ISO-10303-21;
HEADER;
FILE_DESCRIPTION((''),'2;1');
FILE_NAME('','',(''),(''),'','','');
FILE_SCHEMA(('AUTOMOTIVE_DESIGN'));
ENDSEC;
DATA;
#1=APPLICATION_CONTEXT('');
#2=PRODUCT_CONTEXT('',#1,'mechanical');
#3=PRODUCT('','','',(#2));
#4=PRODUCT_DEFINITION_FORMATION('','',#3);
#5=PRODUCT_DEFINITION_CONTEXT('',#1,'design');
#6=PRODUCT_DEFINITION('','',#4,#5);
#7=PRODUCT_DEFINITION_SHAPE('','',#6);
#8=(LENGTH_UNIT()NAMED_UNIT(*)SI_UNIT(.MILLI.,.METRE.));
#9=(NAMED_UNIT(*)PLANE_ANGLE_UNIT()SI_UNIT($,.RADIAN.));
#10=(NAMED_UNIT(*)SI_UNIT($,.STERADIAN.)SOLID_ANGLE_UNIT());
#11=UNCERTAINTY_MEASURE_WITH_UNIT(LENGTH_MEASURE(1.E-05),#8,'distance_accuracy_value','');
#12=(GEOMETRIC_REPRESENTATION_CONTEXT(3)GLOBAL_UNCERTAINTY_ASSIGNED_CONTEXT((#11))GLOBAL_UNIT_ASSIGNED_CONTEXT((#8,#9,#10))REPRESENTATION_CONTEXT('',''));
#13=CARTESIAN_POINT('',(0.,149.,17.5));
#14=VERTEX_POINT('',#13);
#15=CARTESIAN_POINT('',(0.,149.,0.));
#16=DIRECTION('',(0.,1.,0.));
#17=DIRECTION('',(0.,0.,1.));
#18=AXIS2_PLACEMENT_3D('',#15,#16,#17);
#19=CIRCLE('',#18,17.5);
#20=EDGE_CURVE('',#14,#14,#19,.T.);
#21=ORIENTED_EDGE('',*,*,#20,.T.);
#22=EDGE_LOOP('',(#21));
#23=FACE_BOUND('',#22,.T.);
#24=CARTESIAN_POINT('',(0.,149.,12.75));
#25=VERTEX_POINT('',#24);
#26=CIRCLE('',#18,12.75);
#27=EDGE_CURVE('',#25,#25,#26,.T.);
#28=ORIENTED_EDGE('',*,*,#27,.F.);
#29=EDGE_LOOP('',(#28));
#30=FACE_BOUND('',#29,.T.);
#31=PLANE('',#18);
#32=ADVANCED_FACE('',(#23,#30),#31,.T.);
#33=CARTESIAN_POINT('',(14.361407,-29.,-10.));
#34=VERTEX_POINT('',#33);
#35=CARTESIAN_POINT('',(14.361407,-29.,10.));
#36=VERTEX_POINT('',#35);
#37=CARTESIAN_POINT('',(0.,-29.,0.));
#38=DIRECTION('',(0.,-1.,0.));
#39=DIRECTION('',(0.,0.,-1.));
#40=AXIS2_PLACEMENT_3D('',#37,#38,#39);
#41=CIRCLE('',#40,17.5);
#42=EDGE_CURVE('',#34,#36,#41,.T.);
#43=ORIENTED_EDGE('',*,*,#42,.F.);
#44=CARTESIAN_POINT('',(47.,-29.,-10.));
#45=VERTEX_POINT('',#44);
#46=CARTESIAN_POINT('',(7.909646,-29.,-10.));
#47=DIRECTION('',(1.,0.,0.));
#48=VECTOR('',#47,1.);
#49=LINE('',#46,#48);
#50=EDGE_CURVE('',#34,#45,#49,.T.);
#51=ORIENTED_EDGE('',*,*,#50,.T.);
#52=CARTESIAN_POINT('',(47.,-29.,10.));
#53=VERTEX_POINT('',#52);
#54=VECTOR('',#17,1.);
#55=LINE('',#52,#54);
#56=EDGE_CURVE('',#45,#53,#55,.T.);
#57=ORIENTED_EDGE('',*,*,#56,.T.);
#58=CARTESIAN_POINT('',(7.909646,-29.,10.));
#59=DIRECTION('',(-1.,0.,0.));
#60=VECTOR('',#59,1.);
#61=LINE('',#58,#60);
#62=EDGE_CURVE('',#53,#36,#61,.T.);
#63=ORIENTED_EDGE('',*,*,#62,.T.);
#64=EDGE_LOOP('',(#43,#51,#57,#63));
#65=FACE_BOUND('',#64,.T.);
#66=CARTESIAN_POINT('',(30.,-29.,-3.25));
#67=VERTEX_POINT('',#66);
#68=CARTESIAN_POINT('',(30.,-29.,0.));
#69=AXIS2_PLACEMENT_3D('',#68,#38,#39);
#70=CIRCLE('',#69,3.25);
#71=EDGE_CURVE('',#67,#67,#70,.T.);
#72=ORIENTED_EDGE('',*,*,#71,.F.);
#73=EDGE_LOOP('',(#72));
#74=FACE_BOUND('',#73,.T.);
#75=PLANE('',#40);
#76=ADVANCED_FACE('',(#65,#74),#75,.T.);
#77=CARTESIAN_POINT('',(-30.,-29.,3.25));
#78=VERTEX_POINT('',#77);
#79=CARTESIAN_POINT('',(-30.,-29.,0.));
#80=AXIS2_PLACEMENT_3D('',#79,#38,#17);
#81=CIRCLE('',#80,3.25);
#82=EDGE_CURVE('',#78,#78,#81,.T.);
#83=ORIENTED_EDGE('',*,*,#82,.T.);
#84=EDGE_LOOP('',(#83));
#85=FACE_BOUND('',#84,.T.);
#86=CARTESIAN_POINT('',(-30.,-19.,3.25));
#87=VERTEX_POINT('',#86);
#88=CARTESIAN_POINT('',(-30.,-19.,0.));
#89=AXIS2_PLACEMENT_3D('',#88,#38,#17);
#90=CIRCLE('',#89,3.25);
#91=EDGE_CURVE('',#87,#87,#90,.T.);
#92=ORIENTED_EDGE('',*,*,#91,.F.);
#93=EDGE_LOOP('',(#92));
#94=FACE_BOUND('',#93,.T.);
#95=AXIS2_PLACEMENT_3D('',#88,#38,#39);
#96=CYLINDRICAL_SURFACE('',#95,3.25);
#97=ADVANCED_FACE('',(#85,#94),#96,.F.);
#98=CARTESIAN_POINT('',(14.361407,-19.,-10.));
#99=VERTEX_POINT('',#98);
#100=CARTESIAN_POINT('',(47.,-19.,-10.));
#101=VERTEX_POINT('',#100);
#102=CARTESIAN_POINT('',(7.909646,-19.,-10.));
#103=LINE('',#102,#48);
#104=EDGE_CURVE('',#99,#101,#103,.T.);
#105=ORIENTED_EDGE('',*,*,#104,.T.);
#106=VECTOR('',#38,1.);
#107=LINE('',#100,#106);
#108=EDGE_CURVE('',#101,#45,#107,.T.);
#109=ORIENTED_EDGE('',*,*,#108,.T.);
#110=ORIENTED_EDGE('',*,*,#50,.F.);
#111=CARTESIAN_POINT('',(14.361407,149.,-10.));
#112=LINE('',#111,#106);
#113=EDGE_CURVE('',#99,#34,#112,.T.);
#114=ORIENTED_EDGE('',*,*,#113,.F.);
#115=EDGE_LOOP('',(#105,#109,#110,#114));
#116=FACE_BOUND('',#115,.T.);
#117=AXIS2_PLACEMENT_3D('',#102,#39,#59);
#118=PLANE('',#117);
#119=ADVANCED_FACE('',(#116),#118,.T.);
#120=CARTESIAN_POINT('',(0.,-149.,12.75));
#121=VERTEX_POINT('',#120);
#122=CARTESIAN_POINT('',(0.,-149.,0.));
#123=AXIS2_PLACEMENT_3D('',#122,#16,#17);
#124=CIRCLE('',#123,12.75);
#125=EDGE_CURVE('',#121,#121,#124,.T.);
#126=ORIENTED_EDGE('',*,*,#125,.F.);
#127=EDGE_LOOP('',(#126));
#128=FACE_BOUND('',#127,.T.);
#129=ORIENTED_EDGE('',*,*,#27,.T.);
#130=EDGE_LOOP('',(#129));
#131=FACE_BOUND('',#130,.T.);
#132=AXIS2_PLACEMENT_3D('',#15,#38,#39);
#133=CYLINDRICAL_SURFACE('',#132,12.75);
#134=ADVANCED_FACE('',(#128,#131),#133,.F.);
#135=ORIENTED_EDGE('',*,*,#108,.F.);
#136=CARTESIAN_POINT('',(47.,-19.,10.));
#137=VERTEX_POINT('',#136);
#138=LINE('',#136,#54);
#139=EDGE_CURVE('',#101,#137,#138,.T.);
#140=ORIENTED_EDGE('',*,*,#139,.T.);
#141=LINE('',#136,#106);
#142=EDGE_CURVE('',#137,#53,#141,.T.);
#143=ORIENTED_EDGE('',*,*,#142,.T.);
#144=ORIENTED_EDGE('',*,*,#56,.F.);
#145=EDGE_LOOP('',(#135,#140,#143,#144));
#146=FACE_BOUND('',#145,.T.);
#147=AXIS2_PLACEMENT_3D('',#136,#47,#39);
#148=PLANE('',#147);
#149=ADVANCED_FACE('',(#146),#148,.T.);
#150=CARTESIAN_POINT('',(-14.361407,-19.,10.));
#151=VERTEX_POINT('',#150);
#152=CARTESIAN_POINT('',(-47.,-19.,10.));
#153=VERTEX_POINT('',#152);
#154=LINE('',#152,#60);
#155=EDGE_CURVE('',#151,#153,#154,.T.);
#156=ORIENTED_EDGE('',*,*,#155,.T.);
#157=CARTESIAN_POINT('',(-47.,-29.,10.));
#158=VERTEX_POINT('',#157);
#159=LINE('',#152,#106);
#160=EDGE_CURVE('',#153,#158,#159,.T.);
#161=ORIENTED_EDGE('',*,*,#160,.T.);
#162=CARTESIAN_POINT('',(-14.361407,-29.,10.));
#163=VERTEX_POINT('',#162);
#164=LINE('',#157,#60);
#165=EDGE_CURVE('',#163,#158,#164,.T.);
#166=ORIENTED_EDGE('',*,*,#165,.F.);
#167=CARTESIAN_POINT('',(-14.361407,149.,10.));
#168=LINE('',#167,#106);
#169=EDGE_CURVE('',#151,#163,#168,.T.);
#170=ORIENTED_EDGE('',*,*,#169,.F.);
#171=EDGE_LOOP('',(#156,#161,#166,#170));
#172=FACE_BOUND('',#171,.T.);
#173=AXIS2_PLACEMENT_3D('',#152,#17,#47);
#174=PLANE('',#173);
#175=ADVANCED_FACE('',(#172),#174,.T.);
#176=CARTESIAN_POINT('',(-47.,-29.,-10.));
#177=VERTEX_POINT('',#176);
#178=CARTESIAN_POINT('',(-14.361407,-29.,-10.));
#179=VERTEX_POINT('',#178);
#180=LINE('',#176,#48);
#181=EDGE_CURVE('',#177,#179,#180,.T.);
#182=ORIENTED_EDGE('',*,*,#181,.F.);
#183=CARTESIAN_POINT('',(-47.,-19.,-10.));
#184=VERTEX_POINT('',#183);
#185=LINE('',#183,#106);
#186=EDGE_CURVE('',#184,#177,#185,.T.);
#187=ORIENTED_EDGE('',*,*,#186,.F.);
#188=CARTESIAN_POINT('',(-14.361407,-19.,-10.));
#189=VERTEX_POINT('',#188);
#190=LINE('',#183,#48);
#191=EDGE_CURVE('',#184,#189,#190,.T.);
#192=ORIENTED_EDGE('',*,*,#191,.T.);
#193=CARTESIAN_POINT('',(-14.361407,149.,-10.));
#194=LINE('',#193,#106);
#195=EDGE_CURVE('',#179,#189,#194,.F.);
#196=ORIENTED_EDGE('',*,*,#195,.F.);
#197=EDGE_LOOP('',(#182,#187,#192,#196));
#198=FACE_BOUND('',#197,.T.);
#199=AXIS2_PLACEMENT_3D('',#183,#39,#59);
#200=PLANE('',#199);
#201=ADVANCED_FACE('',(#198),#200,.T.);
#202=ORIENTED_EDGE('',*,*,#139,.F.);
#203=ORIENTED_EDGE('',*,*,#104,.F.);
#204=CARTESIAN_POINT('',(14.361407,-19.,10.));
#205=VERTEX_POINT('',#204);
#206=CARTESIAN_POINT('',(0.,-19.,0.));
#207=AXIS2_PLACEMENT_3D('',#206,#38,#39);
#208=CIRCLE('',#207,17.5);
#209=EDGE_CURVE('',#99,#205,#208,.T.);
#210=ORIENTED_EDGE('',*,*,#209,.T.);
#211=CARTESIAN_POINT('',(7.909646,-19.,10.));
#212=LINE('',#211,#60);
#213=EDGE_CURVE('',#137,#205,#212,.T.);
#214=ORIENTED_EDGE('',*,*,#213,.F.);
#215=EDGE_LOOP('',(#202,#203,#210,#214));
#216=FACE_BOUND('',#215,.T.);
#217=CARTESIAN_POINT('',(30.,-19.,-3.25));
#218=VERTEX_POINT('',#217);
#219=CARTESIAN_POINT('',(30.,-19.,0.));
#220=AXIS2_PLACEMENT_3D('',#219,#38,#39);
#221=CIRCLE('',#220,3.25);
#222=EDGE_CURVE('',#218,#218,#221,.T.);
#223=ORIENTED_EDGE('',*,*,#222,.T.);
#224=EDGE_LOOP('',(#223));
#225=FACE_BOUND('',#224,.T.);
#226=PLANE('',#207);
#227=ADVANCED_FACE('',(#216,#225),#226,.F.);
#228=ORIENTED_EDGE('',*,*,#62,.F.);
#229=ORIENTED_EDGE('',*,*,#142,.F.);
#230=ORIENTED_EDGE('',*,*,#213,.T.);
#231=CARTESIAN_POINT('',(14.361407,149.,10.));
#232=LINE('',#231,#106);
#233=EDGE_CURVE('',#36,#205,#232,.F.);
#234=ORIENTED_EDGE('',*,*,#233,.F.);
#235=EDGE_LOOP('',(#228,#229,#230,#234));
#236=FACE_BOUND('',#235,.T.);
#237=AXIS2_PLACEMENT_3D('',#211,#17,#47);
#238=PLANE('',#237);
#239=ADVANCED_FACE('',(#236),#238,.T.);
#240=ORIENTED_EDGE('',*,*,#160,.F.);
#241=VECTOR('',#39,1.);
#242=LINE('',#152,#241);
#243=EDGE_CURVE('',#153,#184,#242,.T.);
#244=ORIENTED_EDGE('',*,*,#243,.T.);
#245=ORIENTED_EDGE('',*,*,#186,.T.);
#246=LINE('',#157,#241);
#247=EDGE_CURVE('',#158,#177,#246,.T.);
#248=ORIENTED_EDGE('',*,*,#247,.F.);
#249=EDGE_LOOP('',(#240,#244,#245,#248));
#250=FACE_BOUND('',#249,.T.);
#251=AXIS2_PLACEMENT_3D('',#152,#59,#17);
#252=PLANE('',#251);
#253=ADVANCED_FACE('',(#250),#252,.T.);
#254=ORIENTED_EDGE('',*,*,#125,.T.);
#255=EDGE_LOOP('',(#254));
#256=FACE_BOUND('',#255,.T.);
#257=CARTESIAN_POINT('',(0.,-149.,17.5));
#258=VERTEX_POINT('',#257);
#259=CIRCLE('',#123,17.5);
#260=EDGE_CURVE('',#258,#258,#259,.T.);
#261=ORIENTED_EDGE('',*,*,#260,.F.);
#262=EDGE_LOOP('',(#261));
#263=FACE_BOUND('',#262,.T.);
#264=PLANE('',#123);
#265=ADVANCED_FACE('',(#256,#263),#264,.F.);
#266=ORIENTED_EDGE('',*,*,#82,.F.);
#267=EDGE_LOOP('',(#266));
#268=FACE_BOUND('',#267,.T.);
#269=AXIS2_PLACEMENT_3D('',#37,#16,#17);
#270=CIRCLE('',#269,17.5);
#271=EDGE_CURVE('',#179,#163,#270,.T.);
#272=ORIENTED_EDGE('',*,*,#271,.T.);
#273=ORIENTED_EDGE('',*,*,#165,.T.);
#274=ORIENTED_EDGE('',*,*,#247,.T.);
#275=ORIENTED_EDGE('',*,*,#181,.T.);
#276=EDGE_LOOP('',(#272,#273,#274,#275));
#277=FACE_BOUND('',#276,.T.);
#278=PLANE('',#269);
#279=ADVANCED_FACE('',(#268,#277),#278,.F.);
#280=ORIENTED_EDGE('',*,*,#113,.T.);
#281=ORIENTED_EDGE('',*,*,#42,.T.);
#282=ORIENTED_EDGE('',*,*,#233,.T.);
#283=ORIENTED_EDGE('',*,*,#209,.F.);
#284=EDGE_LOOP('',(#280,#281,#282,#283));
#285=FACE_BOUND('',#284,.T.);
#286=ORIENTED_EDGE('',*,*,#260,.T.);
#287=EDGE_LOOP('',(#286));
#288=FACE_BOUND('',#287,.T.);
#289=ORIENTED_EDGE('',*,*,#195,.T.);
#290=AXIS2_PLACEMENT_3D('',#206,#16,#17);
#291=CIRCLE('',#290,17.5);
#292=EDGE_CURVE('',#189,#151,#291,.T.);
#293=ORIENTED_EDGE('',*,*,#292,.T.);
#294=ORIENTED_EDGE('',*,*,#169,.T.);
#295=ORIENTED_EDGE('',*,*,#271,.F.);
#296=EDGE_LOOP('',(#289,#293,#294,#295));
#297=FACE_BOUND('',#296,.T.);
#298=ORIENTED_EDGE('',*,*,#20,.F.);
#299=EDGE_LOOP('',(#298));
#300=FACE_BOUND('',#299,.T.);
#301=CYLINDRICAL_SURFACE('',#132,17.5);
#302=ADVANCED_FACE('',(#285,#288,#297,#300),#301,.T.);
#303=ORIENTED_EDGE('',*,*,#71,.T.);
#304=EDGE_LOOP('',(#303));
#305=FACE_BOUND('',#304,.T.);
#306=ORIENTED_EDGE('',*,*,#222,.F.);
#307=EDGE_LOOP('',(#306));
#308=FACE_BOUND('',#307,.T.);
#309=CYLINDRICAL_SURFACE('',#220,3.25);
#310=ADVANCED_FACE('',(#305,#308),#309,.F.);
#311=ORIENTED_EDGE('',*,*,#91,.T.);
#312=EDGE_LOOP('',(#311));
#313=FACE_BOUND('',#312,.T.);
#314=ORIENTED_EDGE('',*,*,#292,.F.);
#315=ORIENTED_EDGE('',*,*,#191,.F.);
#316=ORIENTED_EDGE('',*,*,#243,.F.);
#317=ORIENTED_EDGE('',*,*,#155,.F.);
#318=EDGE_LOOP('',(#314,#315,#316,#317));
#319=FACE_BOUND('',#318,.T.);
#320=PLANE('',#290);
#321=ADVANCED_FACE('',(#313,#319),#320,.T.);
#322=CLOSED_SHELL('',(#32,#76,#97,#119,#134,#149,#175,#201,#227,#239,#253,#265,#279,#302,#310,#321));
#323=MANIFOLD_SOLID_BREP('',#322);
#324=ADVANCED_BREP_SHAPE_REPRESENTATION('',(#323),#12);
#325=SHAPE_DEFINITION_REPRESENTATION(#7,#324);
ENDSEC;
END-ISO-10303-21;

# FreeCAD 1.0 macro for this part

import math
import FreeCAD as App
import Part
import Sketcher

V = App.Vector

doc = App.newDocument("Part")
body = doc.addObject("PartDesign::Body", "Body")

# Sketch on XZ plane
sketch1 = body.newObject("Sketcher::SketchObject", "Sketch")
sketch1.AttachmentSupport = (doc.getObject("XZ_Plane"), [""])
sketch1.MapMode = "FlatFace"
sketch1.addGeometry(Part.Circle(V(0, 0, 0), V(0, 0, 1), 18), False)
sketch1.addGeometry(Part.Circle(V(0, 0, 0), V(0, 0, 1), 13), False)
sketch1.addConstraint(Sketcher.Constraint("Coincident", 0, 3, -1, 1))
sketch1.addConstraint(Sketcher.Constraint("Coincident", 1, 3, -1, 1))
sketch1.addConstraint(Sketcher.Constraint("Diameter", 0, 35.0))
sketch1.addConstraint(Sketcher.Constraint("Diameter", 1, 25.5))
pad1 = body.newObject("PartDesign::Pad", "Pad")
pad1.Profile = sketch1
pad1.Length = 298
pad1.Midplane = True

# Sketch on XZ plane
sketch2 = body.newObject("Sketcher::SketchObject", "Sketch001")
sketch2.AttachmentSupport = (doc.getObject("XZ_Plane"), [""])
sketch2.MapMode = "FlatFace"
sketch2.AttachmentOffset = App.Placement(V(0, 0, 29), App.Rotation())
sketch2.addGeometry(Part.LineSegment(V(-7.9, 10, 0), V(-47, 10, 0)), False)
sketch2.addGeometry(Part.LineSegment(V(-47, 10, 0), V(-47, -10, 0)), False)
sketch2.addGeometry(Part.LineSegment(V(-47, -10, 0), V(-7.9, -10, 0)), False)
sketch2.addGeometry(Part.ArcOfCircle(Part.Circle(V(0, 0, 0), V(0, 0, 1), 12.8), math.radians(128), math.radians(232)), False)
sketch2.addGeometry(Part.Circle(V(-30, 0, 0), V(0, 0, 1), 3.2), False)
sketch2.addGeometry(Part.LineSegment(V(47, -10, 0), V(47, 10, 0)), False)
sketch2.addGeometry(Part.LineSegment(V(47, 10, 0), V(7.9, 10, 0)), False)
sketch2.addGeometry(Part.ArcOfCircle(Part.Circle(V(0, 0, 0), V(0, 0, 1), 12.8), math.radians(-52), math.radians(52)), False)
sketch2.addGeometry(Part.LineSegment(V(7.9, -10, 0), V(47, -10, 0)), False)
sketch2.addGeometry(Part.Circle(V(30, 0, 0), V(0, 0, 1), 3.2), False)
sketch2.addConstraint(Sketcher.Constraint("Coincident", 0, 2, 1, 1))
sketch2.addConstraint(Sketcher.Constraint("Coincident", 1, 2, 2, 1))
sketch2.addConstraint(Sketcher.Constraint("Coincident", 2, 2, 3, 2))
sketch2.addConstraint(Sketcher.Constraint("Coincident", 3, 1, 0, 1))
sketch2.addConstraint(Sketcher.Constraint("Coincident", 5, 2, 6, 1))
sketch2.addConstraint(Sketcher.Constraint("Coincident", 6, 2, 7, 2))
sketch2.addConstraint(Sketcher.Constraint("Coincident", 7, 1, 8, 1))
sketch2.addConstraint(Sketcher.Constraint("Coincident", 8, 2, 5, 1))
sketch2.addConstraint(Sketcher.Constraint("Horizontal", 0))
sketch2.addConstraint(Sketcher.Constraint("Vertical", 1))
sketch2.addConstraint(Sketcher.Constraint("Horizontal", 2))
sketch2.addConstraint(Sketcher.Constraint("Vertical", 5))
sketch2.addConstraint(Sketcher.Constraint("Horizontal", 6))
sketch2.addConstraint(Sketcher.Constraint("Horizontal", 8))
sketch2.addConstraint(Sketcher.Constraint("Coincident", 3, 3, -1, 1))
sketch2.addConstraint(Sketcher.Constraint("Coincident", 7, 3, -1, 1))
sketch2.addConstraint(Sketcher.Constraint("Equal", 3, 7))
sketch2.addConstraint(Sketcher.Constraint("Equal", 4, 9))
sketch2.addConstraint(Sketcher.Constraint("Symmetric", 4, 3, 9, 3, -1, 1))
sketch2.addConstraint(Sketcher.Constraint("Symmetric", 1, 2, 5, 2, -1, 1))
sketch2.addConstraint(Sketcher.Constraint("PointOnObject", 4, 3, -1))
sketch2.addConstraint(Sketcher.Constraint("Horizontal", 3, 1, 5, 2))
sketch2.addConstraint(Sketcher.Constraint("Horizontal", 2, 2, 7, 1))
sketch2.addConstraint(Sketcher.Constraint("Diameter", 4, 6.5))
sketch2.addConstraint(Sketcher.Constraint("DistanceY", 1, 2, 1, 1, 20.0))
sketch2.addConstraint(Sketcher.Constraint("Radius", 3, 12.75))
sketch2.addConstraint(Sketcher.Constraint("DistanceX", 4, 3, -1, 1, 30.0))
sketch2.addConstraint(Sketcher.Constraint("DistanceX", 0, 2, -1, 1, 47.0))
pad2 = body.newObject("PartDesign::Pad", "Pad001")
pad2.Profile = sketch2
pad2.Length = 10
pad2.Reversed = True

doc.recompute()
